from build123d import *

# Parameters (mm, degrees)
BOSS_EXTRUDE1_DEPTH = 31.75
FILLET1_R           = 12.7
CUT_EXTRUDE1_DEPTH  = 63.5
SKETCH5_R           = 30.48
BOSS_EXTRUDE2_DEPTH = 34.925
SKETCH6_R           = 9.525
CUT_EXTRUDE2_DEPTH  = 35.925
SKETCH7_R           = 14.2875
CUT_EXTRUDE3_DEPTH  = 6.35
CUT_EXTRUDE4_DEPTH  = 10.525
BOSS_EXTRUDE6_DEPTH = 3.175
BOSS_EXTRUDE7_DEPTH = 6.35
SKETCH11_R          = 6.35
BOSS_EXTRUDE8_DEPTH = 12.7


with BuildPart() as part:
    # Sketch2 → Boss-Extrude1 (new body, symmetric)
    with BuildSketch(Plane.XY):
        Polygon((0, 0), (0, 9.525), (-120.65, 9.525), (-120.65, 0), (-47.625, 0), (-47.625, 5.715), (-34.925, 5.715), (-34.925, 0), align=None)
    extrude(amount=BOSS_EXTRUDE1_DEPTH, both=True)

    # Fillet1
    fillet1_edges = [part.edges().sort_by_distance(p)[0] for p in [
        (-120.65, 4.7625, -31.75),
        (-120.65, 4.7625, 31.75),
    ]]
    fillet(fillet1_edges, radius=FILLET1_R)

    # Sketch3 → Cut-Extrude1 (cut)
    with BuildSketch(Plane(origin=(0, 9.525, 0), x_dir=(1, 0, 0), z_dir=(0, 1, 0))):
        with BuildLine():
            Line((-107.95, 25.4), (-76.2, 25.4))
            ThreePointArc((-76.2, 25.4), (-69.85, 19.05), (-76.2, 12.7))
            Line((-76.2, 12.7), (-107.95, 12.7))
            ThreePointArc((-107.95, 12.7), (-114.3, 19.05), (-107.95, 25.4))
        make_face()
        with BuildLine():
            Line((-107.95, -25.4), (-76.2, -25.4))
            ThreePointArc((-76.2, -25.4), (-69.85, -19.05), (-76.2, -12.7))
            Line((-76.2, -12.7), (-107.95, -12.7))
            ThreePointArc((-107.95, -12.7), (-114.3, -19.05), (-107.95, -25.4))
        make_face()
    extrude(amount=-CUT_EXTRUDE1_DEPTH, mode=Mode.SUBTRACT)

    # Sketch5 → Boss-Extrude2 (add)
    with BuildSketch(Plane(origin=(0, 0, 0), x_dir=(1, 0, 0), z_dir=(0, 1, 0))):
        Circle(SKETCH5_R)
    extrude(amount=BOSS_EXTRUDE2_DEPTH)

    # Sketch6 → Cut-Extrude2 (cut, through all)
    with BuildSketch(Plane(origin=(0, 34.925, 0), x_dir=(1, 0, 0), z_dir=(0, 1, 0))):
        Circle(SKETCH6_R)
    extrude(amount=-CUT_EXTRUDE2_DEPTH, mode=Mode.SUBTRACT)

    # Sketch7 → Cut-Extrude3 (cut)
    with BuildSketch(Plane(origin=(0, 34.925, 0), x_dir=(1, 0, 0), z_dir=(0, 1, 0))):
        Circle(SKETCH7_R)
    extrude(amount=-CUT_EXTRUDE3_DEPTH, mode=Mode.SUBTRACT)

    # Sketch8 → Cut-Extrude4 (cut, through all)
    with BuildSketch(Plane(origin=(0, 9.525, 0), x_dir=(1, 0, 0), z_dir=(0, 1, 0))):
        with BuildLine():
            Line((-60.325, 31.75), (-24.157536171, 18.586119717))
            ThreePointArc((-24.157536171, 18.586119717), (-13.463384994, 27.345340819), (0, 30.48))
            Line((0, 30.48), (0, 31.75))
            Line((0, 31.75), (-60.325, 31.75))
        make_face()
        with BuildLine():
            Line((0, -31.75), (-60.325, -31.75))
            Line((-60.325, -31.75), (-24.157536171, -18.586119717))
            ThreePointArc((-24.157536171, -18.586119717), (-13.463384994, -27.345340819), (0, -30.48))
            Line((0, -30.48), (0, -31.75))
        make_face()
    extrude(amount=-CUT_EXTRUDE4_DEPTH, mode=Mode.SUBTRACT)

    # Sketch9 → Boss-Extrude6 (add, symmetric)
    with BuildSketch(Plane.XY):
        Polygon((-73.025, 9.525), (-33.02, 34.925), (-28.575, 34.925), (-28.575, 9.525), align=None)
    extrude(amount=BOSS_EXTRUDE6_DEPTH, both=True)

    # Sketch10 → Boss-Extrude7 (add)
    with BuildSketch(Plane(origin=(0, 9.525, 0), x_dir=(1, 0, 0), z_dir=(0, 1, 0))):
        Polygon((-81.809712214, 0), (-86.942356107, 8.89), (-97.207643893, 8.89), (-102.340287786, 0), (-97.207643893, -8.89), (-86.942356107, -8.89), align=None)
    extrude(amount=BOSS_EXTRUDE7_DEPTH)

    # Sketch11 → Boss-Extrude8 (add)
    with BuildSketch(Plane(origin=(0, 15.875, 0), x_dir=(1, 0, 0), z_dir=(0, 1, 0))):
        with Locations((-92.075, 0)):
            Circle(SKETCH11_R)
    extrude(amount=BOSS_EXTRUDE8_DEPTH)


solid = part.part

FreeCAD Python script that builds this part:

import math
import FreeCAD as App
import Part
import Sketcher
Q = App.Units.Quantity


def edges_at(feature, points):
    """Names of the edges that pass closest to the given points."""
    edges = feature.Shape.Edges
    near = lambda p: min(range(len(edges)), key=lambda i: edges[i].distToShape(Part.Vertex(*p))[0])
    return sorted({f"Edge{near(p) + 1}" for p in points})


def add_polygon(sketch, points):
    """Adds a closed chain of lines whose ends are joined by coincident constraints."""
    first, n = sketch.GeometryCount, len(points)
    for a, b in zip(points, points[1:] + points[:1]):
        sketch.addGeometry(Part.LineSegment(App.Vector(*a, 0), App.Vector(*b, 0)), False)
    for i in range(n):
        sketch.addConstraint(Sketcher.Constraint("Coincident", first + i, 2, first + (i + 1) % n, 1))

doc = App.newDocument("Part")
body = doc.addObject("PartDesign::Body", "Body")

sketch1 = body.newObject("Sketcher::SketchObject", "Sketch")
sketch1.AttachmentSupport = (doc.getObject("XY_Plane"), [""])
sketch1.MapMode = "FlatFace"
add_polygon(sketch1, [(0, 0), (0, 10), (-121, 10), (-121, 0), (-48, 0), (-48, 6), (-35, 6), (-35, 0)])
sketch1.addConstraint(Sketcher.Constraint("Vertical", 0))
sketch1.addConstraint(Sketcher.Constraint("Horizontal", 1))
sketch1.addConstraint(Sketcher.Constraint("Vertical", 2))
sketch1.addConstraint(Sketcher.Constraint("Horizontal", 3))
sketch1.addConstraint(Sketcher.Constraint("Vertical", 4))
sketch1.addConstraint(Sketcher.Constraint("Horizontal", 5))
sketch1.addConstraint(Sketcher.Constraint("Vertical", 6))
sketch1.addConstraint(Sketcher.Constraint("Horizontal", 7))
sketch1.addConstraint(Sketcher.Constraint("Coincident", 7, 2, -1, 1))
sketch1.addConstraint(Sketcher.Constraint("PointOnObject", 2, 2, -1))
sketch1.addConstraint(Sketcher.Constraint("DistanceX", 5, 1, 5, 2, Q("0.5 in")))
sketch1.addConstraint(Sketcher.Constraint("DistanceX", 1, 2, 1, 1, Q("4.75 in")))
sketch1.addConstraint(Sketcher.Constraint("DistanceX", 3, 1, 3, 2, Q("2.875 in")))
sketch1.addConstraint(Sketcher.Constraint("DistanceY", 0, 1, 0, 2, Q("0.375 in")))
sketch1.addConstraint(Sketcher.Constraint("DistanceY", 4, 1, 4, 2, Q("0.225 in")))
pad1 = body.newObject("PartDesign::Pad", "Pad")
pad1.Profile = sketch1
pad1.Length = Q("2.5 in")
pad1.Midplane = True
doc.recompute()

fillet = body.newObject("PartDesign::Fillet", "Fillet")
fillet.Base = (pad1, edges_at(pad1, [(-120.65, 4.763, -31.75), (-120.65, 4.763, 31.75)]))
fillet.Radius = Q("0.5 in")

sketch2 = body.newObject("Sketcher::SketchObject", "Sketch001")
sketch2.AttachmentSupport = (doc.getObject("XZ_Plane"), [""])
sketch2.MapMode = "FlatFace"
sketch2.AttachmentOffset = App.Placement(App.Vector(0, 0, -0.375 * 25.4), App.Rotation())
sketch2.addGeometry(Part.LineSegment(App.Vector(-76, -25, 0), App.Vector(-108, -25, 0)), False)
sketch2.addGeometry(Part.ArcOfCircle(Part.Circle(App.Vector(-108, -19, 0), App.Vector(0, 0, 1), 6), math.radians(90), math.radians(270)), False)
sketch2.addGeometry(Part.LineSegment(App.Vector(-108, -13, 0), App.Vector(-76, -13, 0)), False)
sketch2.addGeometry(Part.ArcOfCircle(Part.Circle(App.Vector(-76, -19, 0), App.Vector(0, 0, 1), 6), math.radians(-90), math.radians(90)), False)
sketch2.addGeometry(Part.LineSegment(App.Vector(-108, 25, 0), App.Vector(-76, 25, 0)), False)
sketch2.addGeometry(Part.ArcOfCircle(Part.Circle(App.Vector(-76, 19, 0), App.Vector(0, 0, 1), 6), math.radians(-90), math.radians(90)), False)
sketch2.addGeometry(Part.LineSegment(App.Vector(-76, 13, 0), App.Vector(-108, 13, 0)), False)
sketch2.addGeometry(Part.ArcOfCircle(Part.Circle(App.Vector(-108, 19, 0), App.Vector(0, 0, 1), 6), math.radians(90), math.radians(270)), False)
sketch2.addConstraint(Sketcher.Constraint("Tangent", 0, 2, 1, 2))
sketch2.addConstraint(Sketcher.Constraint("Tangent", 1, 1, 2, 1))
sketch2.addConstraint(Sketcher.Constraint("Tangent", 2, 2, 3, 2))
sketch2.addConstraint(Sketcher.Constraint("Tangent", 3, 1, 0, 1))
sketch2.addConstraint(Sketcher.Constraint("Tangent", 4, 2, 5, 2))
sketch2.addConstraint(Sketcher.Constraint("Tangent", 5, 1, 6, 1))
sketch2.addConstraint(Sketcher.Constraint("Tangent", 6, 2, 7, 2))
sketch2.addConstraint(Sketcher.Constraint("Tangent", 7, 1, 4, 1))
sketch2.addConstraint(Sketcher.Constraint("Horizontal", 0))
sketch2.addConstraint(Sketcher.Constraint("Horizontal", 2))
sketch2.addConstraint(Sketcher.Constraint("Horizontal", 4))
sketch2.addConstraint(Sketcher.Constraint("Horizontal", 6))
sketch2.addConstraint(Sketcher.Constraint("Equal", 3, 5))
sketch2.addConstraint(Sketcher.Constraint("Symmetric", 3, 3, 5, 3, -1))
sketch2.addConstraint(Sketcher.Constraint("Vertical", 1, 3, 7, 3))
sketch2.addConstraint(Sketcher.Constraint("Radius", 1, Q("0.25 in")))
sketch2.addConstraint(Sketcher.Constraint("DistanceX", 3, 3, -1, 1, Q("3 in")))
sketch2.addConstraint(Sketcher.Constraint("DistanceY", 0, 2, -1, 1, Q("1 in")))
sketch2.addConstraint(Sketcher.Constraint("DistanceX", 0, 2, 0, 1, Q("1.25 in")))
pocket1 = body.newObject("PartDesign::Pocket", "Pocket")
pocket1.Profile = sketch2
pocket1.Length = Q("2.5 in")
pocket1.Reversed = True

sketch3 = body.newObject("Sketcher::SketchObject", "Sketch002")
sketch3.AttachmentSupport = (doc.getObject("XZ_Plane"), [""])
sketch3.MapMode = "FlatFace"
sketch3.addGeometry(Part.Circle(App.Vector(0, 0, 0), App.Vector(0, 0, 1), 30), False)
sketch3.addConstraint(Sketcher.Constraint("Coincident", 0, 3, -1, 1))
sketch3.addConstraint(Sketcher.Constraint("Diameter", 0, Q("2.4 in")))
pad2 = body.newObject("PartDesign::Pad", "Pad001")
pad2.Profile = sketch3
pad2.Length = Q("1.375 in")
pad2.Reversed = True

sketch4 = body.newObject("Sketcher::SketchObject", "Sketch003")
sketch4.AttachmentSupport = (doc.getObject("XZ_Plane"), [""])
sketch4.MapMode = "FlatFace"
sketch4.AttachmentOffset = App.Placement(App.Vector(0, 0, -1.375 * 25.4), App.Rotation())
sketch4.addGeometry(Part.Circle(App.Vector(0, 0, 0), App.Vector(0, 0, 1), 10), False)
sketch4.addConstraint(Sketcher.Constraint("Coincident", 0, 3, -1, 1))
sketch4.addConstraint(Sketcher.Constraint("Diameter", 0, Q("0.75 in")))
pocket2 = body.newObject("PartDesign::Pocket", "Pocket001")
pocket2.Profile = sketch4
pocket2.Type = "ThroughAll"
pocket2.Reversed = True

sketch5 = body.newObject("Sketcher::SketchObject", "Sketch004")
sketch5.AttachmentSupport = (doc.getObject("XZ_Plane"), [""])
sketch5.MapMode = "FlatFace"
sketch5.AttachmentOffset = App.Placement(App.Vector(0, 0, -1.375 * 25.4), App.Rotation())
sketch5.addGeometry(Part.Circle(App.Vector(0, 0, 0), App.Vector(0, 0, 1), 14), False)
sketch5.addConstraint(Sketcher.Constraint("Coincident", 0, 3, -1, 1))
sketch5.addConstraint(Sketcher.Constraint("Diameter", 0, Q("1.125 in")))
pocket3 = body.newObject("PartDesign::Pocket", "Pocket002")
pocket3.Profile = sketch5
pocket3.Length = Q("0.25 in")
pocket3.Reversed = True

sketch6 = body.newObject("Sketcher::SketchObject", "Sketch005")
sketch6.AttachmentSupport = (doc.getObject("XZ_Plane"), [""])
sketch6.MapMode = "FlatFace"
sketch6.AttachmentOffset = App.Placement(App.Vector(0, 0, -0.375 * 25.4), App.Rotation())
sketch6.addGeometry(Part.LineSegment(App.Vector(-60.3, -31.8, 0), App.Vector(-24.2, -18.6, 0)), False)
sketch6.addGeometry(Part.ArcOfCircle(Part.Circle(App.Vector(0, 0, 0), App.Vector(0, 0, 1), 30.5), math.radians(-142), math.radians(-90)), False)
sketch6.addGeometry(Part.LineSegment(App.Vector(0, -30.5, 0), App.Vector(0, -31.8, 0)), False)
sketch6.addGeometry(Part.LineSegment(App.Vector(0, -31.8, 0), App.Vector(-60.3, -31.8, 0)), False)
sketch6.addGeometry(Part.LineSegment(App.Vector(-60.3, 31.8, 0), App.Vector(0, 31.8, 0)), False)
sketch6.addGeometry(Part.LineSegment(App.Vector(0, 31.8, 0), App.Vector(0, 30.5, 0)), False)
sketch6.addGeometry(Part.ArcOfCircle(Part.Circle(App.Vector(0, 0, 0), App.Vector(0, 0, 1), 30.5), math.radians(90), math.radians(142)), False)
sketch6.addGeometry(Part.LineSegment(App.Vector(-24.2, 18.6, 0), App.Vector(-60.3, 31.8, 0)), False)
sketch6.addConstraint(Sketcher.Constraint("Coincident", 0, 2, 1, 1))
sketch6.addConstraint(Sketcher.Constraint("Coincident", 1, 2, 2, 1))
sketch6.addConstraint(Sketcher.Constraint("Coincident", 2, 2, 3, 1))
sketch6.addConstraint(Sketcher.Constraint("Coincident", 3, 2, 0, 1))
sketch6.addConstraint(Sketcher.Constraint("Coincident", 4, 2, 5, 1))
sketch6.addConstraint(Sketcher.Constraint("Coincident", 5, 2, 6, 1))
sketch6.addConstraint(Sketcher.Constraint("Coincident", 6, 2, 7, 1))
sketch6.addConstraint(Sketcher.Constraint("Coincident", 7, 2, 4, 1))
sketch6.addConstraint(Sketcher.Constraint("Vertical", 2))
sketch6.addConstraint(Sketcher.Constraint("Horizontal", 3))
sketch6.addConstraint(Sketcher.Constraint("Horizontal", 4))
sketch6.addConstraint(Sketcher.Constraint("Vertical", 5))
sketch6.addConstraint(Sketcher.Constraint("Coincident", 1, 3, -1, 1))
sketch6.addConstraint(Sketcher.Constraint("Coincident", 6, 3, -1, 1))
sketch6.addConstraint(Sketcher.Constraint("Equal", 1, 6))
sketch6.addConstraint(Sketcher.Constraint("Symmetric", 2, 2, 4, 2, -1, 1))
sketch6.addConstraint(Sketcher.Constraint("PointOnObject", 1, 2, -2))
sketch6.addConstraint(Sketcher.Constraint("Vertical", 0, 2, 6, 2))
sketch6.addConstraint(Sketcher.Constraint("Vertical", 3, 2, 7, 2))
sketch6.addConstraint(Sketcher.Constraint("Radius", 1, Q("1.2 in")))
sketch6.addConstraint(Sketcher.Constraint("Angle", 0, Q("20 deg")))
sketch6.addConstraint(Sketcher.Constraint("DistanceY", 2, 2, 2, 1, Q("0.05 in")))
sketch6.addConstraint(Sketcher.Constraint("DistanceX", 3, 2, 3, 1, Q("2.375 in")))
pocket4 = body.newObject("PartDesign::Pocket", "Pocket003")
pocket4.Profile = sketch6
pocket4.Type = "ThroughAll"
pocket4.Reversed = True

sketch7 = body.newObject("Sketcher::SketchObject", "Sketch006")
sketch7.AttachmentSupport = (doc.getObject("XY_Plane"), [""])
sketch7.MapMode = "FlatFace"
add_polygon(sketch7, [(-33, 34.9), (-73, 9.5), (-28.6, 9.5), (-28.6, 34.9)])
sketch7.addConstraint(Sketcher.Constraint("Horizontal", 1))
sketch7.addConstraint(Sketcher.Constraint("Vertical", 2))
sketch7.addConstraint(Sketcher.Constraint("Horizontal", 3))
sketch7.addConstraint(Sketcher.Constraint("DistanceY", 2, 1, 2, 2, Q("1 in")))
sketch7.addConstraint(Sketcher.Constraint("DistanceX", 1, 1, 1, 2, Q("1.75 in")))
sketch7.addConstraint(Sketcher.Constraint("DistanceX", 3, 2, -1, 1, Q("1.3 in")))
sketch7.addConstraint(Sketcher.Constraint("DistanceX", 3, 2, 3, 1, Q("0.175 in")))
sketch7.addConstraint(Sketcher.Constraint("DistanceY", -1, 1, 0, 2, Q("0.375 in")))
pad3 = body.newObject("PartDesign::Pad", "Pad002")
pad3.Profile = sketch7
pad3.Length = Q("0.25 in")
pad3.Midplane = True

sketch8 = body.newObject("Sketcher::SketchObject", "Sketch007")
sketch8.AttachmentSupport = (doc.getObject("XZ_Plane"), [""])
sketch8.MapMode = "FlatFace"
sketch8.AttachmentOffset = App.Placement(App.Vector(0, 0, -0.375 * 25.4), App.Rotation())
add_polygon(sketch8, [(-82, 0), (-87, -9), (-97, -9), (-102, 0), (-97, 9), (-87, 9)])
sketch8.addConstraint(Sketcher.Constraint("Horizontal", 1))
sketch8.addConstraint(Sketcher.Constraint("Horizontal", 4))
sketch8.addConstraint(Sketcher.Constraint("Symmetric", 1, 2, 3, 2, -1))
sketch8.addConstraint(Sketcher.Constraint("PointOnObject", 2, 2, -1))
sketch8.addConstraint(Sketcher.Constraint("PointOnObject", 5, 2, -1))
sketch8.addConstraint(Sketcher.Constraint("Parallel", 0, 3))
sketch8.addConstraint(Sketcher.Constraint("Parallel", 2, 5))
sketch8.addConstraint(Sketcher.Constraint("Angle", 0, Q("-120 deg")))
sketch8.addConstraint(Sketcher.Constraint("DistanceY", 1, 2, 3, 2, Q("0.7 in")))
sketch8.addConstraint(Sketcher.Constraint("DistanceX", 1, 2, 1, 1, Q("10.265288 mm")))
sketch8.addConstraint(Sketcher.Constraint("DistanceX", 0, 2, -1, 1, Q("86.942356 mm")))
pad4 = body.newObject("PartDesign::Pad", "Pad003")
pad4.Profile = sketch8
pad4.Length = Q("0.25 in")
pad4.Reversed = True

sketch9 = body.newObject("Sketcher::SketchObject", "Sketch008")
sketch9.AttachmentSupport = (doc.getObject("XZ_Plane"), [""])
sketch9.MapMode = "FlatFace"
sketch9.AttachmentOffset = App.Placement(App.Vector(0, 0, -0.625 * 25.4), App.Rotation())
sketch9.addGeometry(Part.Circle(App.Vector(-92, 0, 0), App.Vector(0, 0, 1), 6), False)
sketch9.addConstraint(Sketcher.Constraint("PointOnObject", 0, 3, -1))
sketch9.addConstraint(Sketcher.Constraint("Diameter", 0, Q("0.5 in")))
sketch9.addConstraint(Sketcher.Constraint("DistanceX", 0, 3, -1, 1, Q("3.625 in")))
pad5 = body.newObject("PartDesign::Pad", "Pad004")
pad5.Profile = sketch9
pad5.Length = Q("0.5 in")
pad5.Reversed = True

doc.recompute()
